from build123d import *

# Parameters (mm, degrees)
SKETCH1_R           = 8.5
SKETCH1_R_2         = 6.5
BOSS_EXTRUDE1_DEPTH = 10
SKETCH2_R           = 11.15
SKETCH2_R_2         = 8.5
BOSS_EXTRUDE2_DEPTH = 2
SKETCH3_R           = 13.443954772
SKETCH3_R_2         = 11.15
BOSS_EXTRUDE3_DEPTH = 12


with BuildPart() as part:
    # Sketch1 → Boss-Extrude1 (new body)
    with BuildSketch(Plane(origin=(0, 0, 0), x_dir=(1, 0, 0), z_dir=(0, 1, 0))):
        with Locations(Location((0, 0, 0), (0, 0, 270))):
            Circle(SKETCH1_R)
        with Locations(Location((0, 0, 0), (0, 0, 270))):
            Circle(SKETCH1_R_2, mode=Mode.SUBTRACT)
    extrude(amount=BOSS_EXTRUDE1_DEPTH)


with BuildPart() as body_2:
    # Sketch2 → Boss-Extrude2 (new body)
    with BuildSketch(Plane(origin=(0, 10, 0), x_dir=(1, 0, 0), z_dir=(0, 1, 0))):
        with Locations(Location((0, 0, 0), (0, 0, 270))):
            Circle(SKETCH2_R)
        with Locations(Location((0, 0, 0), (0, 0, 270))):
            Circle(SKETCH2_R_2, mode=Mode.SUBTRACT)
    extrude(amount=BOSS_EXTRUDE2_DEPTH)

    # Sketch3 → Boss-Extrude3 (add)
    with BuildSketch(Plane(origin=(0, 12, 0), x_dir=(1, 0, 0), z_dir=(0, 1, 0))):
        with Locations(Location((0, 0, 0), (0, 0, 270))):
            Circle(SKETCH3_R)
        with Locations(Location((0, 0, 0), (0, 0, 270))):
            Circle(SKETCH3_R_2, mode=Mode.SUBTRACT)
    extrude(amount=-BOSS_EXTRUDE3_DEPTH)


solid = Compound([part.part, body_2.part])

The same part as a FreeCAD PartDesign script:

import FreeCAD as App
import Part
import Sketcher

doc = App.newDocument("Part")
body = doc.addObject("PartDesign::Body", "Body")

# Sketch on XZ plane
sketch1 = body.newObject("Sketcher::SketchObject", "Sketch")
sketch1.AttachmentSupport = (doc.getObject("XZ_Plane"), [""])
sketch1.MapMode = "FlatFace"
sketch1.addGeometry(Part.Circle(App.Vector(0, 0, 0), App.Vector(0, 0, 1), 8), False)
sketch1.addGeometry(Part.Circle(App.Vector(0, 0, 0), App.Vector(0, 0, 1), 6), False)
sketch1.addConstraint(Sketcher.Constraint("Coincident", 0, 3, -1, 1))
sketch1.addConstraint(Sketcher.Constraint("Coincident", 1, 3, -1, 1))
sketch1.addConstraint(Sketcher.Constraint("Diameter", 0, 17.0))
sketch1.addConstraint(Sketcher.Constraint("Diameter", 1, 13.0))
pad1 = body.newObject("PartDesign::Pad", "Pad")
pad1.Profile = sketch1
pad1.Length = 10
pad1.Reversed = True
body2 = doc.addObject("PartDesign::Body", "Body001")

# Sketch on XZ plane
sketch2 = body2.newObject("Sketcher::SketchObject", "Sketch001")
sketch2.AttachmentSupport = (doc.getObject("XZ_Plane001"), [""])
sketch2.MapMode = "FlatFace"
sketch2.AttachmentOffset = App.Placement(App.Vector(0, 0, -10), App.Rotation())
sketch2.addGeometry(Part.Circle(App.Vector(0, 0, 0), App.Vector(0, 0, 1), 11), False)
sketch2.addGeometry(Part.Circle(App.Vector(0, 0, 0), App.Vector(0, 0, 1), 8), False)
sketch2.addConstraint(Sketcher.Constraint("Coincident", 0, 3, -1, 1))
sketch2.addConstraint(Sketcher.Constraint("Coincident", 1, 3, -1, 1))
sketch2.addConstraint(Sketcher.Constraint("Diameter", 1, 17.0))
sketch2.addConstraint(Sketcher.Constraint("Diameter", 0, 22.3))
pad2 = body2.newObject("PartDesign::Pad", "Pad001")
pad2.Profile = sketch2
pad2.Length = 2
pad2.Reversed = True

# Sketch on XZ plane
sketch3 = body2.newObject("Sketcher::SketchObject", "Sketch002")
sketch3.AttachmentSupport = (doc.getObject("XZ_Plane001"), [""])
sketch3.MapMode = "FlatFace"
sketch3.AttachmentOffset = App.Placement(App.Vector(0, 0, -12), App.Rotation())
sketch3.addGeometry(Part.Circle(App.Vector(0, 0, 0), App.Vector(0, 0, 1), 13), False)
sketch3.addGeometry(Part.Circle(App.Vector(0, 0, 0), App.Vector(0, 0, 1), 11), False)
sketch3.addConstraint(Sketcher.Constraint("Coincident", 0, 3, -1, 1))
sketch3.addConstraint(Sketcher.Constraint("Coincident", 1, 3, -1, 1))
sketch3.addConstraint(Sketcher.Constraint("Diameter", 1, 22.3))
sketch3.addConstraint(Sketcher.Constraint("Diameter", 0, 26.88791))
pad3 = body2.newObject("PartDesign::Pad", "Pad002")
pad3.Profile = sketch3
pad3.Length = 12

doc.recompute()
